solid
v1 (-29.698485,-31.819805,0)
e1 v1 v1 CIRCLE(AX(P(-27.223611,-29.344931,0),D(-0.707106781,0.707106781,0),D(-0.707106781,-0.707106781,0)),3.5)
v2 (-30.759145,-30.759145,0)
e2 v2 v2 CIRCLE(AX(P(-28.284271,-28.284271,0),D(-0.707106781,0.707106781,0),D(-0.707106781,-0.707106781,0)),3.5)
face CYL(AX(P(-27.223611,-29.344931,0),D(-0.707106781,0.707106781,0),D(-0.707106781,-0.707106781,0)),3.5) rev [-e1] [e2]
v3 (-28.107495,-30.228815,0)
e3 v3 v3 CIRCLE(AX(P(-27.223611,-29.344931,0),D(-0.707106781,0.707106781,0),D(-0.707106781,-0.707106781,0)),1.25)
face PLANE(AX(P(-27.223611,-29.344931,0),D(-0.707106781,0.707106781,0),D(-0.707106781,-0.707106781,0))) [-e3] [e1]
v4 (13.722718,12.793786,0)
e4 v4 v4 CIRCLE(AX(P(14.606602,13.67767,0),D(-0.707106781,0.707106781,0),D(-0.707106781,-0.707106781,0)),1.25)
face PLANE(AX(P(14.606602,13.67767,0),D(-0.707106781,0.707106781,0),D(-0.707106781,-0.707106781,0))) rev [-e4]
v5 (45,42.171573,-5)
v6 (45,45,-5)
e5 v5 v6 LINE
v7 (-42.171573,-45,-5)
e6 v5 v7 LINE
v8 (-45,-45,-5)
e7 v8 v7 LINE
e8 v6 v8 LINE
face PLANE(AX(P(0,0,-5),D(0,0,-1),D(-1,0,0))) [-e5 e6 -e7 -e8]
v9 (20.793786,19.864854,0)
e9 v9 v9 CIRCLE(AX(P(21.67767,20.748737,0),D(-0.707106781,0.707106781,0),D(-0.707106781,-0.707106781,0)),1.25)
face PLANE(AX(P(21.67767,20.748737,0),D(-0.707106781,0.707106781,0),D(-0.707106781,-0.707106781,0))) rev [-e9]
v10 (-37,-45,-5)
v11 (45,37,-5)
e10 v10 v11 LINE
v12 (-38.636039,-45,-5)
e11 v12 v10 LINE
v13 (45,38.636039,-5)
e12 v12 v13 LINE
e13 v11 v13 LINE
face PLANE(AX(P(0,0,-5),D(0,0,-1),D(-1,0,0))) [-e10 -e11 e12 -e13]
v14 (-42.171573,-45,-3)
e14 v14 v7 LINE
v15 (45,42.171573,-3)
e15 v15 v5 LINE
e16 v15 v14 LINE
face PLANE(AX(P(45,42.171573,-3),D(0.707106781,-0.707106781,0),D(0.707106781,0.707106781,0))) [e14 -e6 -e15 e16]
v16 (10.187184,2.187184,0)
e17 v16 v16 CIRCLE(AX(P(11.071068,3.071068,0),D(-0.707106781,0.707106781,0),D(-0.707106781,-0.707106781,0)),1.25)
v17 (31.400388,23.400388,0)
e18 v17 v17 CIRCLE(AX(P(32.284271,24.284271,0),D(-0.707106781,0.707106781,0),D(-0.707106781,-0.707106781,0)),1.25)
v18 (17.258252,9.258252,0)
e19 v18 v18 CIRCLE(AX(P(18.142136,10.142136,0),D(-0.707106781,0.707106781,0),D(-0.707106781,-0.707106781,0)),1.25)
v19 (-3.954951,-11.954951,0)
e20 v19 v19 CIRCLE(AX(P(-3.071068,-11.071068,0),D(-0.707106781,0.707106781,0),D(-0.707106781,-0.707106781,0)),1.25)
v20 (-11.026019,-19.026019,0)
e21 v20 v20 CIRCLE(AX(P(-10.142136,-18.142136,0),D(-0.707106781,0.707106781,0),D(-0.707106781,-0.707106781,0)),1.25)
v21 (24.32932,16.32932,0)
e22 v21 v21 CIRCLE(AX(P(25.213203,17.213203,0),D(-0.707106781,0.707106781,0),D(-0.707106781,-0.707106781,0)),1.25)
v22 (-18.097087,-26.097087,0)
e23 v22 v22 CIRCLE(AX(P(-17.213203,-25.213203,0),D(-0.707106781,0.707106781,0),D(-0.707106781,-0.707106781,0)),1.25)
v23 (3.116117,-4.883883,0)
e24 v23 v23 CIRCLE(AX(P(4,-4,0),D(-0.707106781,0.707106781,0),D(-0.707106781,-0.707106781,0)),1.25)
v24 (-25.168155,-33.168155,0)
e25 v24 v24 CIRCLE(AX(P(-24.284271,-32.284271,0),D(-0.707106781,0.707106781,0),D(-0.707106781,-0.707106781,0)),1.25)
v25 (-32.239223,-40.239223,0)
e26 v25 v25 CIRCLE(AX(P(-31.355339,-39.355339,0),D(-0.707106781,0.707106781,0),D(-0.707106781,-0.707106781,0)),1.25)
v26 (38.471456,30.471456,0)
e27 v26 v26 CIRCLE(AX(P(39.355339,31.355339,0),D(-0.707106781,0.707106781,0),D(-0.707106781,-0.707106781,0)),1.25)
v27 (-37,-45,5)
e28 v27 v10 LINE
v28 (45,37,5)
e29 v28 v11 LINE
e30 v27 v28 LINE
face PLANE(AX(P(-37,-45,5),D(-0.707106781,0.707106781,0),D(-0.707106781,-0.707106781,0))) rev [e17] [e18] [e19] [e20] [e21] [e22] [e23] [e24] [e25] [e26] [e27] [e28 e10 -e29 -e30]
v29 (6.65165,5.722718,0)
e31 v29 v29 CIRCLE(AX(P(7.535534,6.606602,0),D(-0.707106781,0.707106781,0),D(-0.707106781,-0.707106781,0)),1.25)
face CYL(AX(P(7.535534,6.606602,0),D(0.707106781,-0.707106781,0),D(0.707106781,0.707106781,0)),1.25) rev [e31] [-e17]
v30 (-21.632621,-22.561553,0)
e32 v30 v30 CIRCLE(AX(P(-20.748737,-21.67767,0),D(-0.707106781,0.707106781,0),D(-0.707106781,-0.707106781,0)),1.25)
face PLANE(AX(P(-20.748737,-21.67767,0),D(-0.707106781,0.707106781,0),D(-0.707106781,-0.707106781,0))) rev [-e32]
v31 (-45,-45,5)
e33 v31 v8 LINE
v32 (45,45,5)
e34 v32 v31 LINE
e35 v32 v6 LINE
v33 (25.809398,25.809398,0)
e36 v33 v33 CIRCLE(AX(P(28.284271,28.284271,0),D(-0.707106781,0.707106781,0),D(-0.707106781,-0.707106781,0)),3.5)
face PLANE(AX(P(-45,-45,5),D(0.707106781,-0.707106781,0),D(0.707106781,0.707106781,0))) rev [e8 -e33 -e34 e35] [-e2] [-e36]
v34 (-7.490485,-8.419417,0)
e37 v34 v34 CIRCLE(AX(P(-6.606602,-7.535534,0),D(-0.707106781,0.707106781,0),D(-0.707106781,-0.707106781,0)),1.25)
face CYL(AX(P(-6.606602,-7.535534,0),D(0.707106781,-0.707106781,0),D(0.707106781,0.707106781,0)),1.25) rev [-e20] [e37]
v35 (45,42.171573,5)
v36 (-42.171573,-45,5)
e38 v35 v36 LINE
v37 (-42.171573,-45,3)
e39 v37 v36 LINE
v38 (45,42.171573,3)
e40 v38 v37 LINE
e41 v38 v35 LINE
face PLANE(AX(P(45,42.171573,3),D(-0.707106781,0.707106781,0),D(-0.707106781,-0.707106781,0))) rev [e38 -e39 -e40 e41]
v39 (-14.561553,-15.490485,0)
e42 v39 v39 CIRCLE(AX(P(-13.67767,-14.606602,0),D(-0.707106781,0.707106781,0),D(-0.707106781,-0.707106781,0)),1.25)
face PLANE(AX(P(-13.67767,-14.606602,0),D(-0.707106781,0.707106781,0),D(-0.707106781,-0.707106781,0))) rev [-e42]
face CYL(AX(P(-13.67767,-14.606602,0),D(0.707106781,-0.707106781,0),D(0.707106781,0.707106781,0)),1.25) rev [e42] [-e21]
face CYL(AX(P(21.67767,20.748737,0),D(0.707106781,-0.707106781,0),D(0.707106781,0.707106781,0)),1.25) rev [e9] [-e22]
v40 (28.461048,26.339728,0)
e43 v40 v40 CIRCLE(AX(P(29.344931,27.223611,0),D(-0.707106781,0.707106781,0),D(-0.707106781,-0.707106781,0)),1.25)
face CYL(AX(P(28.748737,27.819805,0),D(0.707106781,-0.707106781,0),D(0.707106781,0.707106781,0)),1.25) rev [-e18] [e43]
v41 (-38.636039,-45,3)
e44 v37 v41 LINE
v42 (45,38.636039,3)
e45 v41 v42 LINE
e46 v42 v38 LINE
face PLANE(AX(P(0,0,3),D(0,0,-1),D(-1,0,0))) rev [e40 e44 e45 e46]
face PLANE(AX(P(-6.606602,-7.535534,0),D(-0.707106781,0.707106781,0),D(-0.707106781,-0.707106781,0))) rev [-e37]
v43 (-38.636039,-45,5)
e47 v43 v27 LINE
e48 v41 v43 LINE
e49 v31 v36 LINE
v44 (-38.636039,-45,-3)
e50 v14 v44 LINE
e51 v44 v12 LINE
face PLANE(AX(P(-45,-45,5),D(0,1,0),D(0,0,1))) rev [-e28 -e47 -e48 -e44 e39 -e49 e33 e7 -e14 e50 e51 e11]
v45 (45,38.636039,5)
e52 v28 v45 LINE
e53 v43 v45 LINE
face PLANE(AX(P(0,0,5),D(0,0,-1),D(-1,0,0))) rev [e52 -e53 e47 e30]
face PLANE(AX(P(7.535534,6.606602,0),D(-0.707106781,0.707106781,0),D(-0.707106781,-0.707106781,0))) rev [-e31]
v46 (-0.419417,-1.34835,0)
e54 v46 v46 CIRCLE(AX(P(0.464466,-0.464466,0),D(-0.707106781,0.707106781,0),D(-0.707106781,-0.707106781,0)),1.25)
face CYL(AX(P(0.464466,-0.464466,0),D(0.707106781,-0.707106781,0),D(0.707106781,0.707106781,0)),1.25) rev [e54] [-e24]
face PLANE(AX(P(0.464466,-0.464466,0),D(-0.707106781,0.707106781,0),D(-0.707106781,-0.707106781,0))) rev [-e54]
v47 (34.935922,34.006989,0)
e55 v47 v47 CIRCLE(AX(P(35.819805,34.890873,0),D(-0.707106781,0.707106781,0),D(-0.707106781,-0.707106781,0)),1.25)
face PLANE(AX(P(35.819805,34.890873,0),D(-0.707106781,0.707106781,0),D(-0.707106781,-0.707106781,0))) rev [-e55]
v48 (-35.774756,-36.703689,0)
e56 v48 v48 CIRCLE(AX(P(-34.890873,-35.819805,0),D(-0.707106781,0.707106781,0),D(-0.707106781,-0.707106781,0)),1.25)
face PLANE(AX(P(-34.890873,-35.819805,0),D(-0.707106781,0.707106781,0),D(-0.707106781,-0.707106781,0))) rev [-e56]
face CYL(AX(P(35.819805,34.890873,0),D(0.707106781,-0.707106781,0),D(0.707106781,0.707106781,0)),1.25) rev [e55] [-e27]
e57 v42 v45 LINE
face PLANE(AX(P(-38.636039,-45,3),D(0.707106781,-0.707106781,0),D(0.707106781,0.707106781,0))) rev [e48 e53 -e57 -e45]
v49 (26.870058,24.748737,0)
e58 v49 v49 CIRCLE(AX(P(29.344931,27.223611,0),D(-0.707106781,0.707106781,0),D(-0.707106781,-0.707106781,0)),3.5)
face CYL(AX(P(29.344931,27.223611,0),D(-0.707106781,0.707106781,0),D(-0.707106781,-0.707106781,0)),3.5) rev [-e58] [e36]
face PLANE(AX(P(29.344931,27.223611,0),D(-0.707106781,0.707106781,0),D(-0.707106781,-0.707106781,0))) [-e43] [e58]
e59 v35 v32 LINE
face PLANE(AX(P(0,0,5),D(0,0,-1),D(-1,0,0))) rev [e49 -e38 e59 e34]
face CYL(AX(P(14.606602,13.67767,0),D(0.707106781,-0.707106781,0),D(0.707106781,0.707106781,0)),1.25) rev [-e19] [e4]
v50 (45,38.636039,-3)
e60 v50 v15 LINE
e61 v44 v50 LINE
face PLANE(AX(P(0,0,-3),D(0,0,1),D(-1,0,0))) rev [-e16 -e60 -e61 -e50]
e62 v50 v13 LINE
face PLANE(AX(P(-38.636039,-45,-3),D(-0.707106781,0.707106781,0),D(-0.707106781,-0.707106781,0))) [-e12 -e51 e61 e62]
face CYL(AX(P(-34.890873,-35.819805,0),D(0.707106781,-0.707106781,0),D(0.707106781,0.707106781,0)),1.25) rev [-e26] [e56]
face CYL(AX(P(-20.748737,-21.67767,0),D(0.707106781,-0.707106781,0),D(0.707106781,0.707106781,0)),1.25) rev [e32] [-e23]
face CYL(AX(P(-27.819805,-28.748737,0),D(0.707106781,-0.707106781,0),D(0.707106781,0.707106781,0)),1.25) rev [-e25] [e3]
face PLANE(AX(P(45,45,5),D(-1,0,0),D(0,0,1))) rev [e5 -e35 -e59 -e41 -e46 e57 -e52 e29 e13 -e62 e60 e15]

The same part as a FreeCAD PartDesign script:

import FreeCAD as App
import Part
import Sketcher


def add_polygon(sketch, points):
    """Adds a closed chain of lines whose ends are joined by coincident constraints."""
    first, n = sketch.GeometryCount, len(points)
    for a, b in zip(points, points[1:] + points[:1]):
        sketch.addGeometry(Part.LineSegment(App.Vector(*a, 0), App.Vector(*b, 0)), False)
    for i in range(n):
        sketch.addConstraint(Sketcher.Constraint("Coincident", first + i, 2, first + (i + 1) % n, 1))

doc = App.newDocument("Part")
params = doc.addObject("Spreadsheet::Sheet", "Params")
for row, (alias, value) in enumerate([
    ("sketch1_width", "8 mm"),
    ("pad1_length", "10 mm"),
    ("pocket1_length", "2 mm"),
    ("sketch3_diameter", "2.5 mm"),
    ("pocket2_length", "5 mm"),
    ("linearpattern_pitch", "10 mm"),
    ("sketch4_diameter", "7 mm"),
    ("pocket3_length", "1.5 mm"),
], start=1):
    params.set(f"A{row}", alias)
    params.set(f"B{row}", "=" + value)
    params.setAlias(f"B{row}", alias)

body = doc.addObject("PartDesign::Body", "Body")

sketch1 = doc.addObject("Sketcher::SketchObject", "Sketch")
body.addObject(sketch1)
sketch1.AttachmentSupport = (doc.XY_Plane, [""])
sketch1.MapMode = "FlatFace"
add_polygon(sketch1, [(45, 45), (-45, -45), (-37, -45), (45, 37)])
sketch1.addConstraint([
    Sketcher.Constraint("Horizontal", 1),
    Sketcher.Constraint("Vertical", 3),
    Sketcher.Constraint("Symmetric", 0, 2, 3, 2, -1, 1),
    Sketcher.Constraint("Parallel", 0, 2),
    Sketcher.Constraint("Equal", 1, 3),
    Sketcher.Constraint("DistanceX", 1, 1, 1, 2, 8.0),
    Sketcher.Constraint("DistanceX", 0, 2, -1, 1, 45.0),
])
sketch1.setExpression("Constraints[9]", "Params.sketch1_width")
pad1 = doc.addObject("PartDesign::Pad", "Pad")
body.addObject(pad1)
pad1.Profile = sketch1
pad1.setExpression("Length", "Params.pad1_length")
pad1.Midplane = True

sketch2 = doc.addObject("Sketcher::SketchObject", "Sketch001")
body.addObject(sketch2)
sketch2.AttachmentSupport = (doc.XY_Plane, [""])
sketch2.MapMode = "FlatFace"
sketch2.AttachmentOffset = App.Placement(App.Vector(0, 0, 5), App.Rotation())
add_polygon(sketch2, [(45, 42.2), (-42.2, -45), (-38.6, -45), (45, 38.6)])
sketch2.addConstraint([
    Sketcher.Constraint("Horizontal", 1),
    Sketcher.Constraint("Vertical", 3),
    Sketcher.Constraint("Parallel", 0, 2),
    Sketcher.Constraint("Equal", 1, 3),
    Sketcher.Constraint("DistanceY", 0, 2, -1, 1, 45.0),
    Sketcher.Constraint("DistanceX", -1, 1, 2, 2, 45.0),
    Sketcher.Constraint("Distance", 0, 123.279221),
    Sketcher.Constraint("Distance", 2, 118.279221),
])
pocket1 = doc.addObject("PartDesign::Pocket", "Pocket")
body.addObject(pocket1)
pocket1.Profile = sketch2
pocket1.setExpression("Length", "Params.pocket1_length")
doc.recompute()

mirrored = doc.addObject("PartDesign::Mirrored", "Mirrored")
body.addObject(mirrored)
mirrored.Originals = [pocket1]
mirrored.MirrorPlane = (doc.XY_Plane, [""])
body.Tip = mirrored

sketch3 = doc.addObject("Sketcher::SketchObject", "Sketch002")
body.addObject(sketch3)
sketch3.Placement = App.Placement(App.Vector(4, -4, 0), App.Rotation(App.Vector(0, 0, 1), App.Vector(0.707106781, 0.707106781, 0), App.Vector(-0.707106781, 0.707106781, 0), "ZXY"))
sketch3.addGeometry(Part.Circle(App.Vector(0, 50, 0), App.Vector(0, 0, 1), 1.2), False)
sketch3.addConstraint([
    Sketcher.Constraint("PointOnObject", 0, 3, -2),
    Sketcher.Constraint("Diameter", 0, 2.5),
    Sketcher.Constraint("DistanceY", -1, 1, 0, 3, 50.0),
])
sketch3.setExpression("Constraints[1]", "Params.sketch3_diameter")
pocket2 = doc.addObject("PartDesign::Pocket", "Pocket001")
body.addObject(pocket2)
pocket2.Profile = sketch3
pocket2.setExpression("Length", "Params.pocket2_length")
pocket2.Reversed = True
doc.recompute()

datumline = doc.addObject("PartDesign::Line", "DatumLine")
body.addObject(datumline)
datumline.Placement = App.Placement(App.Vector(0, 0, 0), App.Rotation(App.Vector(0, 0, 1), App.Vector(-0.707106781, -0.707106781, 0)))
linearpattern = doc.addObject("PartDesign::LinearPattern", "LinearPattern")
body.addObject(linearpattern)
linearpattern.Originals = [pocket2]
linearpattern.Direction = (datumline, [""])
linearpattern.Mode = "offset"
linearpattern.setExpression("Offset", "Params.linearpattern_pitch")
linearpattern.Occurrences = 11
body.Tip = linearpattern

sketch4 = doc.addObject("Sketcher::SketchObject", "Sketch003")
body.addObject(sketch4)
sketch4.Placement = App.Placement(App.Vector(0, 0, 0), App.Rotation(App.Vector(0, 0, 1), App.Vector(0.707106781, 0.707106781, 0), App.Vector(-0.707106781, 0.707106781, 0), "ZXY"))
sketch4.addGeometry([
    Part.Circle(App.Vector(0, 40, 0), App.Vector(0, 0, 1), 3.5),
    Part.Circle(App.Vector(0, -40, 0), App.Vector(0, 0, 1), 3.5),
], False)
sketch4.addConstraint([
    Sketcher.Constraint("Equal", 0, 1),
    Sketcher.Constraint("Symmetric", 0, 3, 1, 3, -1, 1),
    Sketcher.Constraint("PointOnObject", 0, 3, -2),
    Sketcher.Constraint("Diameter", 0, 7.0),
    Sketcher.Constraint("DistanceY", -1, 1, 0, 3, 40.0),
])
sketch4.setExpression("Constraints[3]", "Params.sketch4_diameter")
pocket3 = doc.addObject("PartDesign::Pocket", "Pocket002")
body.addObject(pocket3)
pocket3.Profile = sketch4
pocket3.setExpression("Length", "Params.pocket3_length")

doc.recompute()
